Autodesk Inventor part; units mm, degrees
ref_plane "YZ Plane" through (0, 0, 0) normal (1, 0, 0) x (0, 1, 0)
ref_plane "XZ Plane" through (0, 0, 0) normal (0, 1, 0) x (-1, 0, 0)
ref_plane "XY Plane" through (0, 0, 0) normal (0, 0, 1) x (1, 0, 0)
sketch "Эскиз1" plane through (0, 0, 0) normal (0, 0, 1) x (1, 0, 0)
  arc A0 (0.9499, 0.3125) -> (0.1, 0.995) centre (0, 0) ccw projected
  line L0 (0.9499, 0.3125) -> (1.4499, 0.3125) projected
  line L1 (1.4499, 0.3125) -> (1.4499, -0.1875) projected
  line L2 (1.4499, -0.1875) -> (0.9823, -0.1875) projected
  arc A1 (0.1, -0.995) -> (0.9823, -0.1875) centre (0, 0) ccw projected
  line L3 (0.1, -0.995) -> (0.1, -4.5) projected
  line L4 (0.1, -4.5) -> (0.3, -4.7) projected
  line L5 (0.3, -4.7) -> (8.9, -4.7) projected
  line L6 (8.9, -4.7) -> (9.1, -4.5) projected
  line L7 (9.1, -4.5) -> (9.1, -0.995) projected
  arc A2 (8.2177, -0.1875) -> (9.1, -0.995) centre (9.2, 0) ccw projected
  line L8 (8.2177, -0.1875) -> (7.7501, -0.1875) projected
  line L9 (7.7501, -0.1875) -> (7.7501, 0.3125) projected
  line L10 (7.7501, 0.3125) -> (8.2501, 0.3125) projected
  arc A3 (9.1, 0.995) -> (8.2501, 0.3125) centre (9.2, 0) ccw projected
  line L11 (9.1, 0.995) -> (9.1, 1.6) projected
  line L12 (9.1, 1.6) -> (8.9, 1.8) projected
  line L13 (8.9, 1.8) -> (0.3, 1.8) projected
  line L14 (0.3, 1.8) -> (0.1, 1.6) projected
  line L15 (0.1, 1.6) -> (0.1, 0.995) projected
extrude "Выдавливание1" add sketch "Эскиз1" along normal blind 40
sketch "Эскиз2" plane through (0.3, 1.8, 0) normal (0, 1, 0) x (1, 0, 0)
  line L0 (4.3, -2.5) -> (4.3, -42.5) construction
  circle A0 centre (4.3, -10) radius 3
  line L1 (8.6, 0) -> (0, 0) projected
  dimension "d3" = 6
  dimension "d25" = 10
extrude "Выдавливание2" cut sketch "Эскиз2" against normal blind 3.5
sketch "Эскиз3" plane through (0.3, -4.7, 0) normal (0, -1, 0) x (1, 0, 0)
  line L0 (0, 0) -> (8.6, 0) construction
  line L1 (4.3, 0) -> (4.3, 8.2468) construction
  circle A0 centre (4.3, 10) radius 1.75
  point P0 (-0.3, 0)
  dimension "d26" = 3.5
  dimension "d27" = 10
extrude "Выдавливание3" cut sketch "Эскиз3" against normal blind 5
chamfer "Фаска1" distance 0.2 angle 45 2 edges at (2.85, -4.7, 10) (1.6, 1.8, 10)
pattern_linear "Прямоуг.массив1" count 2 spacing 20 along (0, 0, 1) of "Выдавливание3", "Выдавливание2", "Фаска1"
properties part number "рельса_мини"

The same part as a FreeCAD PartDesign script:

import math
import FreeCAD as App
import Part
import Sketcher
from FreeCAD import Vector
Q = App.Units.Quantity


def edges_at(feature, points):
    """Names of the edges that pass closest to the given points."""
    edges = feature.Shape.Edges
    near = lambda p: min(range(len(edges)), key=lambda i: edges[i].distToShape(Part.Vertex(*p))[0])
    return sorted({f"Edge{near(p) + 1}" for p in points})

doc = App.newDocument("Part")
body = doc.addObject("PartDesign::Body", "Body")

sketch1 = body.newObject("Sketcher::SketchObject", "Sketch")
sketch1.AttachmentSupport = (doc.getObject("XY_Plane"), [""])
sketch1.MapMode = "FlatFace"
sketch1.addGeometry([
    Part.ArcOfCircle(Part.Circle(Vector(0, 0, 0), Vector(0, 0, 1), 1.000012), math.radians(18.210275), math.radians(84.260902)),
    Part.LineSegment(Vector(0.9499, 0.3125, 0), Vector(1.4499, 0.3125, 0)),
    Part.LineSegment(Vector(1.4499, 0.3125, 0), Vector(1.4499, -0.1875, 0)),
    Part.LineSegment(Vector(1.4499, -0.1875, 0), Vector(0.9823, -0.1875, 0)),
    Part.ArcOfCircle(Part.Circle(Vector(0, 0, 0), Vector(0, 0, 1), 1.000012), math.radians(-84.260902), math.radians(-10.806543)),
    Part.LineSegment(Vector(0.1, -0.995, 0), Vector(0.1, -4.5, 0)),
    Part.LineSegment(Vector(0.1, -4.5, 0), Vector(0.3, -4.7, 0)),
    Part.LineSegment(Vector(0.3, -4.7, 0), Vector(8.9, -4.7, 0)),
    Part.LineSegment(Vector(8.9, -4.7, 0), Vector(9.1, -4.5, 0)),
    Part.LineSegment(Vector(9.1, -4.5, 0), Vector(9.1, -0.995, 0)),
    Part.ArcOfCircle(Part.Circle(Vector(9.2, 0, 0), Vector(0, 0, 1), 1.000012), math.radians(-169.193457), math.radians(-95.739098)),
    Part.LineSegment(Vector(8.2177, -0.1875, 0), Vector(7.7501, -0.1875, 0)),
    Part.LineSegment(Vector(7.7501, -0.1875, 0), Vector(7.7501, 0.3125, 0)),
    Part.LineSegment(Vector(7.7501, 0.3125, 0), Vector(8.2501, 0.3125, 0)),
    Part.ArcOfCircle(Part.Circle(Vector(9.2, 0, 0), Vector(0, 0, 1), 1.000012), math.radians(95.739098), math.radians(161.789725)),
    Part.LineSegment(Vector(9.1, 0.995, 0), Vector(9.1, 1.6, 0)),
    Part.LineSegment(Vector(9.1, 1.6, 0), Vector(8.9, 1.8, 0)),
    Part.LineSegment(Vector(8.9, 1.8, 0), Vector(0.3, 1.8, 0)),
    Part.LineSegment(Vector(0.3, 1.8, 0), Vector(0.1, 1.6, 0)),
    Part.LineSegment(Vector(0.1, 1.6, 0), Vector(0.1, 0.995, 0)),
], False)
sketch1.addConstraint([
    Sketcher.Constraint("Coincident", 0, 1, 1, 1),
    Sketcher.Constraint("Coincident", 1, 2, 2, 1),
    Sketcher.Constraint("Coincident", 2, 2, 3, 1),
    Sketcher.Constraint("Coincident", 3, 2, 4, 2),
    Sketcher.Constraint("Coincident", 4, 1, 5, 1),
    Sketcher.Constraint("Coincident", 5, 2, 6, 1),
    Sketcher.Constraint("Coincident", 6, 2, 7, 1),
    Sketcher.Constraint("Coincident", 7, 2, 8, 1),
    Sketcher.Constraint("Coincident", 8, 2, 9, 1),
    Sketcher.Constraint("Coincident", 9, 2, 10, 2),
    Sketcher.Constraint("Coincident", 10, 1, 11, 1),
    Sketcher.Constraint("Coincident", 11, 2, 12, 1),
    Sketcher.Constraint("Coincident", 12, 2, 13, 1),
    Sketcher.Constraint("Coincident", 13, 2, 14, 2),
    Sketcher.Constraint("Coincident", 14, 1, 15, 1),
    Sketcher.Constraint("Coincident", 15, 2, 16, 1),
    Sketcher.Constraint("Coincident", 16, 2, 17, 1),
    Sketcher.Constraint("Coincident", 17, 2, 18, 1),
    Sketcher.Constraint("Coincident", 18, 2, 19, 1),
    Sketcher.Constraint("Coincident", 19, 2, 0, 2),
    Sketcher.Constraint("Horizontal", 1),
    Sketcher.Constraint("Vertical", 2),
    Sketcher.Constraint("Horizontal", 3),
    Sketcher.Constraint("Vertical", 5),
    Sketcher.Constraint("Horizontal", 7),
    Sketcher.Constraint("Vertical", 9),
    Sketcher.Constraint("Horizontal", 11),
    Sketcher.Constraint("Vertical", 12),
    Sketcher.Constraint("Horizontal", 13),
    Sketcher.Constraint("Vertical", 15),
    Sketcher.Constraint("Horizontal", 17),
    Sketcher.Constraint("Vertical", 19),
    Sketcher.Constraint("Coincident", 0, 3, -1, 1),
    Sketcher.Constraint("Coincident", 4, 3, -1, 1),
    Sketcher.Constraint("Coincident", 14, 3, 10, 3),
    Sketcher.Constraint("Equal", 0, 4),
    Sketcher.Constraint("Equal", 4, 10),
    Sketcher.Constraint("Equal", 10, 14),
    Sketcher.Constraint("Symmetric", 9, 2, 14, 1, -1),
    Sketcher.Constraint("Perpendicular", 6, 8),
    Sketcher.Constraint("Perpendicular", 8, 16),
    Sketcher.Constraint("Perpendicular", 16, 18),
    Sketcher.Constraint("Horizontal", 5, 2, 8, 2),
    Sketcher.Constraint("Horizontal", 4, 1, 9, 2),
    Sketcher.Constraint("Horizontal", 3, 2, 10, 1),
    Sketcher.Constraint("Horizontal", 1, 2, 12, 2),
    Sketcher.Constraint("Horizontal", 15, 2, 18, 2),
    Sketcher.Constraint("Horizontal", 14, 1, 19, 2),
    Sketcher.Constraint("Vertical", 7, 2, 16, 2),
    Sketcher.Constraint("Vertical", 6, 2, 17, 2),
    Sketcher.Constraint("Equal", 3, 11),
    Sketcher.Constraint("Equal", 13, 2),
    Sketcher.Constraint("Radius", 0, Q("1 mm")),
    Sketcher.Constraint("DistanceX", 1, 1, 1, 2, Q("0.5 mm")),
    Sketcher.Constraint("DistanceX", 7, 1, 7, 2, Q("8.6 mm")),
    Sketcher.Constraint("DistanceX", -1, 1, 10, 3, Q("9.2 mm")),
    Sketcher.Constraint("DistanceX", -1, 1, 4, 1, Q("0.1 mm")),
    Sketcher.Constraint("DistanceY", 5, 2, -1, 1, Q("4.5 mm")),
    Sketcher.Constraint("DistanceY", -1, 1, 15, 2, Q("1.6 mm")),
    Sketcher.Constraint("DistanceX", -1, 1, 0, 1, Q("0.95 mm")),
])
pad1 = body.newObject("PartDesign::Pad", "Pad")
pad1.Profile = sketch1
pad1.Length = 40

sketch2 = body.newObject("Sketcher::SketchObject", "Sketch001")
sketch2.AttachmentSupport = (doc.getObject("XZ_Plane"), [""])
sketch2.MapMode = "FlatFace"
sketch2.AttachmentOffset = App.Placement(Vector(0, 0, -1.8), App.Rotation())
sketch2.addGeometry(Part.Circle(Vector(4.6, 10, 0), Vector(0, 0, 1), 3), False)
sketch2.addConstraint([
    Sketcher.Constraint("Diameter", 0, Q("6 mm")),
    Sketcher.Constraint("DistanceY", -1, 1, 0, 3, Q("10 mm")),
    Sketcher.Constraint("DistanceX", -1, 1, 0, 3, Q("4.6 mm")),
])
pocket1 = body.newObject("PartDesign::Pocket", "Pocket")
pocket1.Profile = sketch2
pocket1.Length = 3.5
pocket1.Reversed = True

sketch3 = body.newObject("Sketcher::SketchObject", "Sketch002")
sketch3.AttachmentSupport = (doc.getObject("XZ_Plane"), [""])
sketch3.MapMode = "FlatFace"
sketch3.AttachmentOffset = App.Placement(Vector(0, 0, 4.7), App.Rotation())
sketch3.addGeometry(Part.Circle(Vector(4.6, 10, 0), Vector(0, 0, 1), 1.75), False)
sketch3.addConstraint([
    Sketcher.Constraint("Diameter", 0, Q("3.5 mm")),
    Sketcher.Constraint("DistanceY", -1, 1, 0, 3, Q("10 mm")),
    Sketcher.Constraint("DistanceX", -1, 1, 0, 3, Q("4.6 mm")),
])
pocket2 = body.newObject("PartDesign::Pocket", "Pocket001")
pocket2.Profile = sketch3
pocket2.Length = 5
doc.recompute()

chamfer = body.newObject("PartDesign::Chamfer", "Chamfer")
chamfer.Base = (pocket2, edges_at(pocket2, [(2.85, -4.7, 10), (1.6, 1.8, 10)]))
chamfer.Size = 0.2
doc.recompute()

linearpattern = body.newObject("PartDesign::LinearPattern", "LinearPattern")
linearpattern.Originals = [pocket2, pocket1, chamfer]
linearpattern.Direction = (doc.getObject("Z_Axis"), [""])
linearpattern.Mode = "offset"
linearpattern.Offset = 20
linearpattern.Occurrences = 2
body.Tip = linearpattern

doc.recompute()
